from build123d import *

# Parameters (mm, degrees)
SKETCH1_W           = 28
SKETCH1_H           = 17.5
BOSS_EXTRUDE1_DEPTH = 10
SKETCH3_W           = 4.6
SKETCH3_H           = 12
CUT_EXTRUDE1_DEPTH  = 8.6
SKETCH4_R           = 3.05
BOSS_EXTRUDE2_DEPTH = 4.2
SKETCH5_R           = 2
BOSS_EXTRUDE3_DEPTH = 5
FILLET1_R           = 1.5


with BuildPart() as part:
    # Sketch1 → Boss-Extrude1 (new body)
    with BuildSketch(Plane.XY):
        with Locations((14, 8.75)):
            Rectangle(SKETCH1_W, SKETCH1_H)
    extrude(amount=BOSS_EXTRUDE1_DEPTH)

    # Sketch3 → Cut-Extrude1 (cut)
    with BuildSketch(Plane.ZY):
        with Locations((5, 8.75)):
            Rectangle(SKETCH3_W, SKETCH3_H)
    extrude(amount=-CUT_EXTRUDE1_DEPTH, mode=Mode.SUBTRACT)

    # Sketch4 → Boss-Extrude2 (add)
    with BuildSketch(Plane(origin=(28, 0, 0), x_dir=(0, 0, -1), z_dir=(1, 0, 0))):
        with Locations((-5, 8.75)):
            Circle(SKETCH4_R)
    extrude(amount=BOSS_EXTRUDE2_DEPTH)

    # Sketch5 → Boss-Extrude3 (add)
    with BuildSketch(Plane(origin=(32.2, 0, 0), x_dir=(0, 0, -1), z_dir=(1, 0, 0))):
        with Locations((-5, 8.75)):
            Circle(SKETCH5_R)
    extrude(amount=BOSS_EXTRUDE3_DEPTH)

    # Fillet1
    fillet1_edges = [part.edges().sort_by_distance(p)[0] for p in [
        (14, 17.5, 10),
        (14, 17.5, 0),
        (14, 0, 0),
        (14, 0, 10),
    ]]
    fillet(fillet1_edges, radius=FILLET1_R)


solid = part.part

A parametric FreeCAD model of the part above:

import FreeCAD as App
import Part
import Sketcher
Q = App.Units.Quantity


def edges_at(feature, points):
    """Names of the edges that pass closest to the given points."""
    edges = feature.Shape.Edges
    near = lambda p: min(range(len(edges)), key=lambda i: edges[i].distToShape(Part.Vertex(*p))[0])
    return sorted({f"Edge{near(p) + 1}" for p in points})


def add_polygon(sketch, points):
    """Adds a closed chain of lines whose ends are joined by coincident constraints."""
    first, n = sketch.GeometryCount, len(points)
    for a, b in zip(points, points[1:] + points[:1]):
        sketch.addGeometry(Part.LineSegment(App.Vector(*a, 0), App.Vector(*b, 0)), False)
    for i in range(n):
        sketch.addConstraint(Sketcher.Constraint("Coincident", first + i, 2, first + (i + 1) % n, 1))

doc = App.newDocument("Part")
body = doc.addObject("PartDesign::Body", "Body")

# Sketch on XY plane
sketch1 = doc.addObject("Sketcher::SketchObject", "Sketch")
body.addObject(sketch1)
sketch1.AttachmentSupport = (doc.XY_Plane, [""])
sketch1.MapMode = "FlatFace"
add_polygon(sketch1, [(0, 18), (0, 0), (28, 0), (28, 18)])  # lines 0-3
sketch1.addConstraint([
    Sketcher.Constraint("Vertical", 0),
    Sketcher.Constraint("Horizontal", 1),
    Sketcher.Constraint("Vertical", 2),
    Sketcher.Constraint("Horizontal", 3),
    Sketcher.Constraint("Coincident", 0, 2, -1, 1),
    Sketcher.Constraint("DistanceX", 1, 1, 1, 2, Q("28 mm")),
    Sketcher.Constraint("DistanceY", 0, 2, 0, 1, Q("17.5 mm")),
])
pad1 = doc.addObject("PartDesign::Pad", "Pad")
body.addObject(pad1)
pad1.Profile = sketch1
pad1.Length = 10

# Sketch on YZ plane
sketch2 = doc.addObject("Sketcher::SketchObject", "Sketch001")
body.addObject(sketch2)
sketch2.AttachmentSupport = (doc.YZ_Plane, [""])
sketch2.MapMode = "FlatFace"
add_polygon(sketch2, [(14.8, 2.7), (2.8, 2.7), (2.8, 7.3), (14.8, 7.3)])  # lines 0-3
sketch2.addConstraint([
    Sketcher.Constraint("Horizontal", 0),
    Sketcher.Constraint("Vertical", 1),
    Sketcher.Constraint("Horizontal", 2),
    Sketcher.Constraint("Vertical", 3),
    Sketcher.Constraint("DistanceX", 0, 2, 0, 1, Q("12 mm")),
    Sketcher.Constraint("DistanceY", 1, 1, 1, 2, Q("4.6 mm")),
    Sketcher.Constraint("DistanceY", -1, 1, 0, 2, Q("2.7 mm")),
    Sketcher.Constraint("DistanceX", -1, 1, 0, 2, Q("2.75 mm")),
])
pocket1 = doc.addObject("PartDesign::Pocket", "Pocket")
body.addObject(pocket1)
pocket1.Profile = sketch2
pocket1.Length = 8.6
pocket1.Reversed = True

# Sketch on YZ plane
sketch3 = doc.addObject("Sketcher::SketchObject", "Sketch002")
body.addObject(sketch3)
sketch3.AttachmentSupport = (doc.YZ_Plane, [""])
sketch3.MapMode = "FlatFace"
sketch3.AttachmentOffset = App.Placement(App.Vector(0, 0, 28), App.Rotation())
sketch3.addGeometry(Part.Circle(App.Vector(8.8, 5, 0), App.Vector(0, 0, 1), 3), False)
sketch3.addConstraint([
    Sketcher.Constraint("Diameter", 0, Q("6.1 mm")),
    Sketcher.Constraint("DistanceY", -1, 1, 0, 3, Q("5 mm")),
    Sketcher.Constraint("DistanceX", -1, 1, 0, 3, Q("8.75 mm")),
])
pad2 = doc.addObject("PartDesign::Pad", "Pad001")
body.addObject(pad2)
pad2.Profile = sketch3
pad2.Length = 4.2

# Sketch on YZ plane
sketch4 = doc.addObject("Sketcher::SketchObject", "Sketch003")
body.addObject(sketch4)
sketch4.AttachmentSupport = (doc.YZ_Plane, [""])
sketch4.MapMode = "FlatFace"
sketch4.AttachmentOffset = App.Placement(App.Vector(0, 0, 32.2), App.Rotation())
sketch4.addGeometry(Part.Circle(App.Vector(8.8, 5, 0), App.Vector(0, 0, 1), 2), False)
sketch4.addConstraint([
    Sketcher.Constraint("Diameter", 0, Q("4 mm")),
    Sketcher.Constraint("DistanceY", -1, 1, 0, 3, Q("5 mm")),
    Sketcher.Constraint("DistanceX", -1, 1, 0, 3, Q("8.75 mm")),
])
pad3 = doc.addObject("PartDesign::Pad", "Pad002")
body.addObject(pad3)
pad3.Profile = sketch4
pad3.Length = 5
doc.recompute()

fillet = doc.addObject("PartDesign::Fillet", "Fillet")
body.addObject(fillet)
fillet.Base = (pad3, edges_at(pad3, [
    (14, 17.5, 10),
    (14, 17.5, 0),
    (14, 0, 0),
    (14, 0, 10),
]))
fillet.Radius = 1.5

doc.recompute()
